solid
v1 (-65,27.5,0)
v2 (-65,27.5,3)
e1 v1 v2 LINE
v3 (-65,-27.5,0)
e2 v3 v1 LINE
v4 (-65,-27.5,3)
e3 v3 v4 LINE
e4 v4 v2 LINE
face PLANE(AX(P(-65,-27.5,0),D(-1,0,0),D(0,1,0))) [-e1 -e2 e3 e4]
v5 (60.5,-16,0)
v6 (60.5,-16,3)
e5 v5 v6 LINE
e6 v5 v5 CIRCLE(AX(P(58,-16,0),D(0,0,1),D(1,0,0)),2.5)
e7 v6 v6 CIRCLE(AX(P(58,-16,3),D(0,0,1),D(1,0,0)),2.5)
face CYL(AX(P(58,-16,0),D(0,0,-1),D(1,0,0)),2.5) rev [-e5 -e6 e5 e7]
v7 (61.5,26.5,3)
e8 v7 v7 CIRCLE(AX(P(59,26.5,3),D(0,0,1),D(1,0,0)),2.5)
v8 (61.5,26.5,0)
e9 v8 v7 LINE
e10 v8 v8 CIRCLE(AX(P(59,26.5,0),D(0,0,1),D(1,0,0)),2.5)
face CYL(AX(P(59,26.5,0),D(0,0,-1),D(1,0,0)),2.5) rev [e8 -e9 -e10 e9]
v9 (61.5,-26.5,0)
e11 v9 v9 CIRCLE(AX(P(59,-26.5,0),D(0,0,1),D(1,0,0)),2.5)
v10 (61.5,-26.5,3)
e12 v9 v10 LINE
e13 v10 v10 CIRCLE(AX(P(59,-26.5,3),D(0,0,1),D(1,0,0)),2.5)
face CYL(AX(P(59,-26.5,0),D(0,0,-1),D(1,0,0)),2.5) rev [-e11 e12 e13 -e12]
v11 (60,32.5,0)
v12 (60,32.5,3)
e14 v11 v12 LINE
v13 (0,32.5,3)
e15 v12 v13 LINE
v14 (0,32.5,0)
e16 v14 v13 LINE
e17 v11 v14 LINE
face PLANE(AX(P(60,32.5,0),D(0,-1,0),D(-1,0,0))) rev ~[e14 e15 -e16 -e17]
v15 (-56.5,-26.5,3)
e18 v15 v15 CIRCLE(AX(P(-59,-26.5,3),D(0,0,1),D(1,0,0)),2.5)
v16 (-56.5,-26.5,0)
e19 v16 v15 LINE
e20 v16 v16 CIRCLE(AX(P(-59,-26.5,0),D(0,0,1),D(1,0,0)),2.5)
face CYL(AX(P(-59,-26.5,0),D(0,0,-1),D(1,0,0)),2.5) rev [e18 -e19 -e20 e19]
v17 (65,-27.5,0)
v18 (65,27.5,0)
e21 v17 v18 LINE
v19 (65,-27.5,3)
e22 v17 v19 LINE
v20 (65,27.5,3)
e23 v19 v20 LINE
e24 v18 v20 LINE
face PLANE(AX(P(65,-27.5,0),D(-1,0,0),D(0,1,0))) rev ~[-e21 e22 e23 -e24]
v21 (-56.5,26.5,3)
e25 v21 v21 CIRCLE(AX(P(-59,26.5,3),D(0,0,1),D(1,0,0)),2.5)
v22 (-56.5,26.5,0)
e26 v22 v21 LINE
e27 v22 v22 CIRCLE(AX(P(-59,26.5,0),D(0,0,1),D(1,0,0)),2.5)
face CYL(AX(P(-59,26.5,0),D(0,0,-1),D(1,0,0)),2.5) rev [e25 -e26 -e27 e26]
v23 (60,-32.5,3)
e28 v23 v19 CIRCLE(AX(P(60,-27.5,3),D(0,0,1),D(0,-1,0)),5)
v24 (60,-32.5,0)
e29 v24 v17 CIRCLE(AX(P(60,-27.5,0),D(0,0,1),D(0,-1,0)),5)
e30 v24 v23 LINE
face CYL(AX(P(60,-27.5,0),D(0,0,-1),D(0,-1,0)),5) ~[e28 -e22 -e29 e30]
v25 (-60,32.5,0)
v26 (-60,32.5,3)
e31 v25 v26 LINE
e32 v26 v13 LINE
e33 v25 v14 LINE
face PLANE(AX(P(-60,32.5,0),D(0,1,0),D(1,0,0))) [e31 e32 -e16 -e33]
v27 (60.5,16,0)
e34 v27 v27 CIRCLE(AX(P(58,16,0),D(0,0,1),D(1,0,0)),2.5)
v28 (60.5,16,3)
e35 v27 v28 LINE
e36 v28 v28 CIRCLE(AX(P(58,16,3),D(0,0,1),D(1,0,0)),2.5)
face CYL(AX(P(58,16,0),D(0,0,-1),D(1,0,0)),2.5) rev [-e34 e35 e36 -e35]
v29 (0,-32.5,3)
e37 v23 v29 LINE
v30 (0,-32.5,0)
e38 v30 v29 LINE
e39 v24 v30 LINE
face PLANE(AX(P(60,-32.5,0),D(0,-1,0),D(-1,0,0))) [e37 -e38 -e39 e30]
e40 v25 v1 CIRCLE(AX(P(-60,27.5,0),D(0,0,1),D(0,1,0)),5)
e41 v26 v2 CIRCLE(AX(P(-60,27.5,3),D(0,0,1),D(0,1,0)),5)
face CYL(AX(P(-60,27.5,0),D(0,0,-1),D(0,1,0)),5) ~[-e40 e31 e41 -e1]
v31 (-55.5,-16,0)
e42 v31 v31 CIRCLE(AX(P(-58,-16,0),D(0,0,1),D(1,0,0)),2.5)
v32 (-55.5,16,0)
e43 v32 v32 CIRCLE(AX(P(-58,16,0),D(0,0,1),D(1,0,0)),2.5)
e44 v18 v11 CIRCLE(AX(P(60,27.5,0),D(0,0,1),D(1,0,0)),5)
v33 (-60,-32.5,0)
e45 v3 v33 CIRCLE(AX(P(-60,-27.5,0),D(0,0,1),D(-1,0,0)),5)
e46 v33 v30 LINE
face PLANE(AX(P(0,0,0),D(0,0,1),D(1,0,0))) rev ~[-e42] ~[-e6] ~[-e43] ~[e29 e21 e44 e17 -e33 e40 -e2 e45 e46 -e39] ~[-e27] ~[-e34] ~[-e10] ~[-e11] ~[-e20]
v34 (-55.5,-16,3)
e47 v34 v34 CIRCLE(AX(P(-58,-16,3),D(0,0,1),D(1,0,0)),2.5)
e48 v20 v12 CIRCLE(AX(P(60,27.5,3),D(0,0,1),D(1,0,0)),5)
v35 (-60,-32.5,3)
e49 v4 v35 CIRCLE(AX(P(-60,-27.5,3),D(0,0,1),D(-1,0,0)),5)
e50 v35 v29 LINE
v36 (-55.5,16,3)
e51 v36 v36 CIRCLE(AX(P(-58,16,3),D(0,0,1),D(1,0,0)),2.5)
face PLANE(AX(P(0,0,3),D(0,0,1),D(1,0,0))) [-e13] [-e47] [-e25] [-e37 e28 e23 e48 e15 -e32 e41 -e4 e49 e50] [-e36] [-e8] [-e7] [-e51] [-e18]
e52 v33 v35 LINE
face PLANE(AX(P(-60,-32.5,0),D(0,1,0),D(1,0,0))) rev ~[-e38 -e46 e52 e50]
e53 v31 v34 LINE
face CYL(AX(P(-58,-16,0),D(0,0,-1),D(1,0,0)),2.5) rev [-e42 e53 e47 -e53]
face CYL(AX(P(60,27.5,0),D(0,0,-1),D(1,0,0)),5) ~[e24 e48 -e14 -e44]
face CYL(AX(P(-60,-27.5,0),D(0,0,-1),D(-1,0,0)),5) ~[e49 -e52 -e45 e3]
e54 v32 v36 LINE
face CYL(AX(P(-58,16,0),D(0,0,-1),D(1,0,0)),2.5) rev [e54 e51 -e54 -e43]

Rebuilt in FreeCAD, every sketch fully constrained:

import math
import FreeCAD as App
import Part
import Sketcher
from FreeCAD import Vector

doc = App.newDocument("Part")
body = doc.addObject("PartDesign::Body", "Body")

sketch1 = body.newObject("Sketcher::SketchObject", "Sketch")
sketch1.AttachmentSupport = (doc.getObject("XY_Plane"), [""])
sketch1.MapMode = "FlatFace"
sketch1.addGeometry(Part.LineSegment(Vector(-65, 27.5, 0), Vector(-65, -27.5, 0)), False)
sketch1.addGeometry(Part.ArcOfCircle(Part.Circle(Vector(-60, -27.5, 0), Vector(0, 0, 1), 5), math.radians(180), math.radians(270)), False)
sketch1.addGeometry(Part.LineSegment(Vector(-60, -32.5, 0), Vector(60, -32.5, 0)), False)
sketch1.addGeometry(Part.ArcOfCircle(Part.Circle(Vector(60, -27.5, 0), Vector(0, 0, 1), 5), math.radians(-90), math.radians(0)), False)
sketch1.addGeometry(Part.LineSegment(Vector(65, -27.5, 0), Vector(65, 27.5, 0)), False)
sketch1.addGeometry(Part.ArcOfCircle(Part.Circle(Vector(60, 27.5, 0), Vector(0, 0, 1), 5), math.radians(0), math.radians(90)), False)
sketch1.addGeometry(Part.LineSegment(Vector(60, 32.5, 0), Vector(-60, 32.5, 0)), False)
sketch1.addGeometry(Part.ArcOfCircle(Part.Circle(Vector(-60, 27.5, 0), Vector(0, 0, 1), 5), math.radians(90), math.radians(180)), False)
sketch1.addGeometry(Part.Circle(Vector(-59, -26.5, 0), Vector(0, 0, 1), 2.5), False)
sketch1.addGeometry(Part.Circle(Vector(-58, -16, 0), Vector(0, 0, 1), 2.5), False)
sketch1.addGeometry(Part.Circle(Vector(59, -26.5, 0), Vector(0, 0, 1), 2.5), False)
sketch1.addGeometry(Part.Circle(Vector(58, -16, 0), Vector(0, 0, 1), 2.5), False)
sketch1.addGeometry(Part.Circle(Vector(-58, 16, 0), Vector(0, 0, 1), 2.5), False)
sketch1.addGeometry(Part.Circle(Vector(-59, 26.5, 0), Vector(0, 0, 1), 2.5), False)
sketch1.addGeometry(Part.Circle(Vector(58, 16, 0), Vector(0, 0, 1), 2.5), False)
sketch1.addGeometry(Part.Circle(Vector(59, 26.5, 0), Vector(0, 0, 1), 2.5), False)
sketch1.addConstraint(Sketcher.Constraint("Tangent", 0, 2, 1, 1))
sketch1.addConstraint(Sketcher.Constraint("Tangent", 1, 2, 2, 1))
sketch1.addConstraint(Sketcher.Constraint("Tangent", 2, 2, 3, 1))
sketch1.addConstraint(Sketcher.Constraint("Tangent", 3, 2, 4, 1))
sketch1.addConstraint(Sketcher.Constraint("Tangent", 4, 2, 5, 1))
sketch1.addConstraint(Sketcher.Constraint("Tangent", 5, 2, 6, 1))
sketch1.addConstraint(Sketcher.Constraint("Tangent", 6, 2, 7, 1))
sketch1.addConstraint(Sketcher.Constraint("Tangent", 7, 2, 0, 1))
sketch1.addConstraint(Sketcher.Constraint("Vertical", 0))
sketch1.addConstraint(Sketcher.Constraint("Horizontal", 2))
sketch1.addConstraint(Sketcher.Constraint("Vertical", 4))
sketch1.addConstraint(Sketcher.Constraint("Horizontal", 6))
sketch1.addConstraint(Sketcher.Constraint("Equal", 1, 3))
sketch1.addConstraint(Sketcher.Constraint("Equal", 3, 5))
sketch1.addConstraint(Sketcher.Constraint("Equal", 5, 7))
sketch1.addConstraint(Sketcher.Constraint("Equal", 8, 9))
sketch1.addConstraint(Sketcher.Constraint("Equal", 9, 10))
sketch1.addConstraint(Sketcher.Constraint("Equal", 10, 11))
sketch1.addConstraint(Sketcher.Constraint("Equal", 11, 12))
sketch1.addConstraint(Sketcher.Constraint("Equal", 12, 13))
sketch1.addConstraint(Sketcher.Constraint("Equal", 13, 14))
sketch1.addConstraint(Sketcher.Constraint("Equal", 14, 15))
sketch1.addConstraint(Sketcher.Constraint("Symmetric", 1, 3, 5, 3, -1, 1))
sketch1.addConstraint(Sketcher.Constraint("Symmetric", 11, 3, 12, 3, -1, 1))
sketch1.addConstraint(Sketcher.Constraint("Symmetric", 10, 3, 13, 3, -1, 1))
sketch1.addConstraint(Sketcher.Constraint("Symmetric", 9, 3, 14, 3, -1, 1))
sketch1.addConstraint(Sketcher.Constraint("Symmetric", 8, 3, 15, 3, -1, 1))
sketch1.addConstraint(Sketcher.Constraint("Symmetric", 8, 3, 10, 3, -2))
sketch1.addConstraint(Sketcher.Constraint("Symmetric", 9, 3, 11, 3, -2))
sketch1.addConstraint(Sketcher.Constraint("Diameter", 8, 5.0))
sketch1.addConstraint(Sketcher.Constraint("Radius", 1, 5.0))
sketch1.addConstraint(Sketcher.Constraint("DistanceX", 0, 2, -1, 1, 65.0))
sketch1.addConstraint(Sketcher.Constraint("DistanceY", 9, 3, 12, 3, 32.0))
sketch1.addConstraint(Sketcher.Constraint("DistanceX", 0, 2, 8, 3, 6.0))
sketch1.addConstraint(Sketcher.Constraint("DistanceX", 0, 2, 9, 3, 7.0))
sketch1.addConstraint(Sketcher.Constraint("DistanceY", 1, 2, 8, 3, 6.0))
sketch1.addConstraint(Sketcher.Constraint("DistanceY", 1, 2, 9, 3, 16.5))
pad1 = body.newObject("PartDesign::Pad", "Pad")
pad1.Profile = sketch1
pad1.Length = 3

doc.recompute()
